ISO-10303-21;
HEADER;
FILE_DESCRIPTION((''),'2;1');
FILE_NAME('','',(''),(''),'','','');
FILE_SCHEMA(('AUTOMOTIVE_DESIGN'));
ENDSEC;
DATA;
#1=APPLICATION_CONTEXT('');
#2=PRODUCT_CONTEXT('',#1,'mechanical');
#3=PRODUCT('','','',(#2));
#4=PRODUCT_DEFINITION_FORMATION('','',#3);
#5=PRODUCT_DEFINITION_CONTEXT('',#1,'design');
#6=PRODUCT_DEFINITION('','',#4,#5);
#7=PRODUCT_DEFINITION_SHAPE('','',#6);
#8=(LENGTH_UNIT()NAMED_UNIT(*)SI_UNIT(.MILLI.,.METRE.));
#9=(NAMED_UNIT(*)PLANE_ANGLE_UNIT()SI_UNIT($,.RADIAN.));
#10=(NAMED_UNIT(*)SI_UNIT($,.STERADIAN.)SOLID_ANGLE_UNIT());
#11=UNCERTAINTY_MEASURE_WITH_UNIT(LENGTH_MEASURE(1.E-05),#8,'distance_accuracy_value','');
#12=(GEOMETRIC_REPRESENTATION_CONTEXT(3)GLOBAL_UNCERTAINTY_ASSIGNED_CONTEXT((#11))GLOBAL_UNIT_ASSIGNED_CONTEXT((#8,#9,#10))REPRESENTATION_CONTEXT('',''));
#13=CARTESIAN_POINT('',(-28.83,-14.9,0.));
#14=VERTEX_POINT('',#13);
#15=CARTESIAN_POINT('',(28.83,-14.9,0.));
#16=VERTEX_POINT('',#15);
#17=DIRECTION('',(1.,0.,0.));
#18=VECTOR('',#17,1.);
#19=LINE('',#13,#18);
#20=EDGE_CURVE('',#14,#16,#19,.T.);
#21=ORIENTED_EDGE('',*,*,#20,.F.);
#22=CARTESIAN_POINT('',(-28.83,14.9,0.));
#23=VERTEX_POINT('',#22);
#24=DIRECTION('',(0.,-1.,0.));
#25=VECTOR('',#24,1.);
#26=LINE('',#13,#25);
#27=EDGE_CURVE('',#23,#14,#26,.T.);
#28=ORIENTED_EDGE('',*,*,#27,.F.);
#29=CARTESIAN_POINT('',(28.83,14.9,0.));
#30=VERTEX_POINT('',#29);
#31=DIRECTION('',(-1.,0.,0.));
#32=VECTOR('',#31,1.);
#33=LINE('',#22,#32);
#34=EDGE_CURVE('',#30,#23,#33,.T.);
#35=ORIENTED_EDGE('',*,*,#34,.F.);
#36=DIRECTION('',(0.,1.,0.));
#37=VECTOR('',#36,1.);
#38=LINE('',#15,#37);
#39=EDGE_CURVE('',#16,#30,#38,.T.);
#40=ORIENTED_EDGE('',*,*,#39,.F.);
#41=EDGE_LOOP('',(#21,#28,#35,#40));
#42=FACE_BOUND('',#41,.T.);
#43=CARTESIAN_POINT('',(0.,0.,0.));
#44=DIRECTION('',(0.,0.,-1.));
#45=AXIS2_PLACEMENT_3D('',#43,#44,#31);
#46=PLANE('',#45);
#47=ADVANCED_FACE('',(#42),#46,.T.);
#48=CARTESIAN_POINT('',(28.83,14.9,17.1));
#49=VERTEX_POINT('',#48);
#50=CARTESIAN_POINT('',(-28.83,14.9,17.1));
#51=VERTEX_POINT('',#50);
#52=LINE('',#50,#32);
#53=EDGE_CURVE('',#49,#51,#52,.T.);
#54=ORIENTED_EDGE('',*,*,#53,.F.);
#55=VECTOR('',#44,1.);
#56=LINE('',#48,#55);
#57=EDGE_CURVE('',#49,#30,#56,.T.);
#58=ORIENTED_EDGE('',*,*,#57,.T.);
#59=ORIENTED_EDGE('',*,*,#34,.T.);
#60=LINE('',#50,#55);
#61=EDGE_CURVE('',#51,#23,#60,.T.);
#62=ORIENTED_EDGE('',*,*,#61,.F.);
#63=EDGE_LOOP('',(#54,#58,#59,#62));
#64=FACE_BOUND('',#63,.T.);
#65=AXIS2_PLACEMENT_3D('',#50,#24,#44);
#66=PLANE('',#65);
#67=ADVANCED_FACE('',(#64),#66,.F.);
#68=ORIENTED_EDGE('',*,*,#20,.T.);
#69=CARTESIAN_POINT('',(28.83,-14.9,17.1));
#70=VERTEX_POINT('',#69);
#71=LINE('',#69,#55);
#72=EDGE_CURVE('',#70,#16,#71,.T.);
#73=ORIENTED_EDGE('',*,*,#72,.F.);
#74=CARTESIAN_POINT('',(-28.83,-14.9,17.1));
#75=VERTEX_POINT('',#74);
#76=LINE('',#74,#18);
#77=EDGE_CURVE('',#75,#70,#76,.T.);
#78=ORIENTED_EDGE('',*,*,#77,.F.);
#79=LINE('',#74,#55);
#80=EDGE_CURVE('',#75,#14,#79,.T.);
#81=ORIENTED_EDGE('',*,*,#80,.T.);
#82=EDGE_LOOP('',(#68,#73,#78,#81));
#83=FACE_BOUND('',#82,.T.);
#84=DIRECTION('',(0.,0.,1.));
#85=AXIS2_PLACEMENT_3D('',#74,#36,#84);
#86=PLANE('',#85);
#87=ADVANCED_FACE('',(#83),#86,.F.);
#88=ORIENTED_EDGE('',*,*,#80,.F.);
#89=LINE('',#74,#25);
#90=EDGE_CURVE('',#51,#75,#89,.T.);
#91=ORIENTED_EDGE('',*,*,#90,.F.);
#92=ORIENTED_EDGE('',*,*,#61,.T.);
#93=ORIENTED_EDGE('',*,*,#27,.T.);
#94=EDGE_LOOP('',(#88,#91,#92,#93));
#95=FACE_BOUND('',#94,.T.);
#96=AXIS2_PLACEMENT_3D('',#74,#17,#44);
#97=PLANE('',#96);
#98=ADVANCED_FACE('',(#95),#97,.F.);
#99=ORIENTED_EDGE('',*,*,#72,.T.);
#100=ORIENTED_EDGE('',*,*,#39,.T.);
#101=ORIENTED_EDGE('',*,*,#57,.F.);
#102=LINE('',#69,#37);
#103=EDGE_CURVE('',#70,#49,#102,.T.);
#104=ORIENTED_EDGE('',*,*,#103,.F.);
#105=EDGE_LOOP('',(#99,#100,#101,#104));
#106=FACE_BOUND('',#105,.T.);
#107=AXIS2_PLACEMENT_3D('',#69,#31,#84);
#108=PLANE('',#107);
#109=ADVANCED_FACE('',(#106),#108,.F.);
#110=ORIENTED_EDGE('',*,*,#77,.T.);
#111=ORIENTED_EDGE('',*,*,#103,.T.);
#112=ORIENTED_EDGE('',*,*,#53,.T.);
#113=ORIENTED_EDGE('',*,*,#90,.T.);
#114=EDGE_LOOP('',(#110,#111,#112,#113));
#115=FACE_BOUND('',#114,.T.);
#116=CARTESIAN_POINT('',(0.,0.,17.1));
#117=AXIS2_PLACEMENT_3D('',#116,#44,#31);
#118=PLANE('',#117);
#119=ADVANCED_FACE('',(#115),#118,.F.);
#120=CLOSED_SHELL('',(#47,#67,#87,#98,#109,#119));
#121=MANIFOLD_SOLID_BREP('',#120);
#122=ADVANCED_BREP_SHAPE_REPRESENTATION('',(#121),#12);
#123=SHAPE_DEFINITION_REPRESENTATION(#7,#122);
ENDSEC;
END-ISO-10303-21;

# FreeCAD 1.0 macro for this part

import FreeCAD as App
import Part
import Sketcher

doc = App.newDocument("Part")
params = doc.addObject("Spreadsheet::Sheet", "Params")
for row, (alias, value) in enumerate([
    ("sketch1_height", "29.8 mm"),
    ("sketch1_width", "57.66 mm"),
    ("pad1_length", "17.1 mm"),
], start=1):
    params.set(f"A{row}", alias)
    params.set(f"B{row}", "=" + value)
    params.setAlias(f"B{row}", alias)

body = doc.addObject("PartDesign::Body", "Body")

# Sketch on XY plane
sketch1 = body.newObject("Sketcher::SketchObject", "Sketch")
sketch1.AttachmentSupport = (doc.getObject("XY_Plane"), [""])
sketch1.MapMode = "FlatFace"
sketch1.addGeometry([
    Part.LineSegment(App.Vector(-29, 15, 0), App.Vector(-29, -15, 0)),
    Part.LineSegment(App.Vector(-29, -15, 0), App.Vector(29, -15, 0)),
    Part.LineSegment(App.Vector(29, -15, 0), App.Vector(29, 15, 0)),
    Part.LineSegment(App.Vector(29, 15, 0), App.Vector(-29, 15, 0)),
], False)
sketch1.addConstraint([
    Sketcher.Constraint("Coincident", 0, 2, 1, 1),
    Sketcher.Constraint("Coincident", 1, 2, 2, 1),
    Sketcher.Constraint("Coincident", 2, 2, 3, 1),
    Sketcher.Constraint("Coincident", 3, 2, 0, 1),
    Sketcher.Constraint("Vertical", 0),
    Sketcher.Constraint("Horizontal", 1),
    Sketcher.Constraint("Vertical", 2),
    Sketcher.Constraint("Horizontal", 3),
    Sketcher.Constraint("Symmetric", 0, 2, 2, 2, -1, 1),
    Sketcher.Constraint("DistanceY", 0, 2, 0, 1, 29.8),
    Sketcher.Constraint("DistanceX", 1, 1, 1, 2, 57.66),
])
sketch1.setExpression("Constraints[9]", "Params.sketch1_height")
sketch1.setExpression("Constraints[10]", "Params.sketch1_width")
pad1 = body.newObject("PartDesign::Pad", "Pad")
pad1.Profile = sketch1
pad1.setExpression("Length", "Params.pad1_length")

doc.recompute()
